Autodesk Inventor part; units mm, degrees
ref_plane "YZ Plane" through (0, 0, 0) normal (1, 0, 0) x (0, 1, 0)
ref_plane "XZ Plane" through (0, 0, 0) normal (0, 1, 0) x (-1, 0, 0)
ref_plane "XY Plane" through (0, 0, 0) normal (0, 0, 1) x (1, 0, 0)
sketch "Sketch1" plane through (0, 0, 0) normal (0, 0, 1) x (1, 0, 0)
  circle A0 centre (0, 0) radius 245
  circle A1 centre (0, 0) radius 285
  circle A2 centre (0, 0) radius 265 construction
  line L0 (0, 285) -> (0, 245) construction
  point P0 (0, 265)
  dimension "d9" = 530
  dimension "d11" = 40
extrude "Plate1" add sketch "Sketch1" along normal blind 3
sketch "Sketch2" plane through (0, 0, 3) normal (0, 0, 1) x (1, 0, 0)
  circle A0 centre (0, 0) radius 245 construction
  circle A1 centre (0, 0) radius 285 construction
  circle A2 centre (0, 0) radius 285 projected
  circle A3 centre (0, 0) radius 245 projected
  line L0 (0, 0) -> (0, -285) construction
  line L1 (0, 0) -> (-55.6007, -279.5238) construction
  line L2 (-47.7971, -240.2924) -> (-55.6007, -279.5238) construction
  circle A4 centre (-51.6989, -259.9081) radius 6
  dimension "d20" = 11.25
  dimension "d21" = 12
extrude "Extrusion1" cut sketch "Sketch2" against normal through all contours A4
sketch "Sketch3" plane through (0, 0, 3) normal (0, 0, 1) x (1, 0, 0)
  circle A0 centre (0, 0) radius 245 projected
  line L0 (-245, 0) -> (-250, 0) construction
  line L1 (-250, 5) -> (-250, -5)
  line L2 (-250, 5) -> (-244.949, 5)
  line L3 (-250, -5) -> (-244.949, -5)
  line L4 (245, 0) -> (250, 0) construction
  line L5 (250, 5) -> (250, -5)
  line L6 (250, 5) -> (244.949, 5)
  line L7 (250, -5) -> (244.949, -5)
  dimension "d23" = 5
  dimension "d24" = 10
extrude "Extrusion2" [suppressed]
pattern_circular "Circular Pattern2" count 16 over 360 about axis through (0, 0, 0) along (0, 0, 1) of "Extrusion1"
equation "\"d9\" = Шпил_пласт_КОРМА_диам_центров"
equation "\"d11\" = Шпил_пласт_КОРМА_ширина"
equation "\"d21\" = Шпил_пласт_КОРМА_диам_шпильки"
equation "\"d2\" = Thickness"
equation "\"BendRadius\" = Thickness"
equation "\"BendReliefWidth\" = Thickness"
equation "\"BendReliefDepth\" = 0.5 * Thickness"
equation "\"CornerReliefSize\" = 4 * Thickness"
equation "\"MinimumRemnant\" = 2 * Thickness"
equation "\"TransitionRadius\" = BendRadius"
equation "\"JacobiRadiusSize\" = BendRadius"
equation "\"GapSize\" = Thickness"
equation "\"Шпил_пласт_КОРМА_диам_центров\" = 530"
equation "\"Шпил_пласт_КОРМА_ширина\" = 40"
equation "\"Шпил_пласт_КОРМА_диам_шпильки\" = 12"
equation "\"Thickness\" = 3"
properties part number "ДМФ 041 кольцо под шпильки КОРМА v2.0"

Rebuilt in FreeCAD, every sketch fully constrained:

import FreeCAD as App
import Part
import Sketcher

V = App.Vector
Q = App.Units.Quantity

doc = App.newDocument("Part")
params = doc.addObject("Spreadsheet::Sheet", "Params")
for row, (alias, value) in enumerate([
    ("sketch1_diameter", "570 mm"),
    ("sketch1_diameter2", "490 mm"),
    ("pad1_length", "3 mm"),
    ("sketch2_diameter", "12 mm"),
], start=1):
    params.set(f"A{row}", alias)
    params.set(f"B{row}", "=" + value)
    params.setAlias(f"B{row}", alias)

body = doc.addObject("PartDesign::Body", "Body")

sketch1 = body.newObject("Sketcher::SketchObject", "Sketch")
sketch1.AttachmentSupport = (doc.getObject("XY_Plane"), [""])
sketch1.MapMode = "FlatFace"
sketch1.addGeometry([
    Part.Circle(V(0, 0, 0), V(0, 0, 1), 285),
    Part.Circle(V(0, 0, 0), V(0, 0, 1), 245),
], False)
sketch1.addConstraint([
    Sketcher.Constraint("Coincident", 0, 3, -1, 1),
    Sketcher.Constraint("Coincident", 1, 3, -1, 1),
    Sketcher.Constraint("Diameter", 0, Q("570 mm")),
    Sketcher.Constraint("Diameter", 1, Q("490 mm")),
])
sketch1.setExpression("Constraints[2]", "Params.sketch1_diameter")
sketch1.setExpression("Constraints[3]", "Params.sketch1_diameter2")
pad1 = body.newObject("PartDesign::Pad", "Pad")
pad1.Profile = sketch1
pad1.setExpression("Length", "Params.pad1_length")

sketch2 = body.newObject("Sketcher::SketchObject", "Sketch001")
sketch2.AttachmentSupport = (doc.getObject("XY_Plane"), [""])
sketch2.MapMode = "FlatFace"
sketch2.AttachmentOffset = App.Placement(V(0, 0, 3), App.Rotation())
sketch2.addGeometry(Part.Circle(V(-52, -260, 0), V(0, 0, 1), 6), False)
sketch2.addConstraint([
    Sketcher.Constraint("Diameter", 0, Q("12 mm")),
    Sketcher.Constraint("DistanceX", 0, 3, -1, 1, Q("51.699 mm")),
    Sketcher.Constraint("DistanceY", 0, 3, -1, 1, Q("259.908 mm")),
])
sketch2.setExpression("Constraints[0]", "Params.sketch2_diameter")
pocket1 = body.newObject("PartDesign::Pocket", "Pocket")
pocket1.Profile = sketch2
pocket1.Type = "ThroughAll"
doc.recompute()

polarpattern = body.newObject("PartDesign::PolarPattern", "PolarPattern")
polarpattern.Originals = [pocket1]
polarpattern.Axis = (doc.getObject("Z_Axis"), [""])
polarpattern.Angle = 360
polarpattern.Occurrences = 16
body.Tip = polarpattern

doc.recompute()
